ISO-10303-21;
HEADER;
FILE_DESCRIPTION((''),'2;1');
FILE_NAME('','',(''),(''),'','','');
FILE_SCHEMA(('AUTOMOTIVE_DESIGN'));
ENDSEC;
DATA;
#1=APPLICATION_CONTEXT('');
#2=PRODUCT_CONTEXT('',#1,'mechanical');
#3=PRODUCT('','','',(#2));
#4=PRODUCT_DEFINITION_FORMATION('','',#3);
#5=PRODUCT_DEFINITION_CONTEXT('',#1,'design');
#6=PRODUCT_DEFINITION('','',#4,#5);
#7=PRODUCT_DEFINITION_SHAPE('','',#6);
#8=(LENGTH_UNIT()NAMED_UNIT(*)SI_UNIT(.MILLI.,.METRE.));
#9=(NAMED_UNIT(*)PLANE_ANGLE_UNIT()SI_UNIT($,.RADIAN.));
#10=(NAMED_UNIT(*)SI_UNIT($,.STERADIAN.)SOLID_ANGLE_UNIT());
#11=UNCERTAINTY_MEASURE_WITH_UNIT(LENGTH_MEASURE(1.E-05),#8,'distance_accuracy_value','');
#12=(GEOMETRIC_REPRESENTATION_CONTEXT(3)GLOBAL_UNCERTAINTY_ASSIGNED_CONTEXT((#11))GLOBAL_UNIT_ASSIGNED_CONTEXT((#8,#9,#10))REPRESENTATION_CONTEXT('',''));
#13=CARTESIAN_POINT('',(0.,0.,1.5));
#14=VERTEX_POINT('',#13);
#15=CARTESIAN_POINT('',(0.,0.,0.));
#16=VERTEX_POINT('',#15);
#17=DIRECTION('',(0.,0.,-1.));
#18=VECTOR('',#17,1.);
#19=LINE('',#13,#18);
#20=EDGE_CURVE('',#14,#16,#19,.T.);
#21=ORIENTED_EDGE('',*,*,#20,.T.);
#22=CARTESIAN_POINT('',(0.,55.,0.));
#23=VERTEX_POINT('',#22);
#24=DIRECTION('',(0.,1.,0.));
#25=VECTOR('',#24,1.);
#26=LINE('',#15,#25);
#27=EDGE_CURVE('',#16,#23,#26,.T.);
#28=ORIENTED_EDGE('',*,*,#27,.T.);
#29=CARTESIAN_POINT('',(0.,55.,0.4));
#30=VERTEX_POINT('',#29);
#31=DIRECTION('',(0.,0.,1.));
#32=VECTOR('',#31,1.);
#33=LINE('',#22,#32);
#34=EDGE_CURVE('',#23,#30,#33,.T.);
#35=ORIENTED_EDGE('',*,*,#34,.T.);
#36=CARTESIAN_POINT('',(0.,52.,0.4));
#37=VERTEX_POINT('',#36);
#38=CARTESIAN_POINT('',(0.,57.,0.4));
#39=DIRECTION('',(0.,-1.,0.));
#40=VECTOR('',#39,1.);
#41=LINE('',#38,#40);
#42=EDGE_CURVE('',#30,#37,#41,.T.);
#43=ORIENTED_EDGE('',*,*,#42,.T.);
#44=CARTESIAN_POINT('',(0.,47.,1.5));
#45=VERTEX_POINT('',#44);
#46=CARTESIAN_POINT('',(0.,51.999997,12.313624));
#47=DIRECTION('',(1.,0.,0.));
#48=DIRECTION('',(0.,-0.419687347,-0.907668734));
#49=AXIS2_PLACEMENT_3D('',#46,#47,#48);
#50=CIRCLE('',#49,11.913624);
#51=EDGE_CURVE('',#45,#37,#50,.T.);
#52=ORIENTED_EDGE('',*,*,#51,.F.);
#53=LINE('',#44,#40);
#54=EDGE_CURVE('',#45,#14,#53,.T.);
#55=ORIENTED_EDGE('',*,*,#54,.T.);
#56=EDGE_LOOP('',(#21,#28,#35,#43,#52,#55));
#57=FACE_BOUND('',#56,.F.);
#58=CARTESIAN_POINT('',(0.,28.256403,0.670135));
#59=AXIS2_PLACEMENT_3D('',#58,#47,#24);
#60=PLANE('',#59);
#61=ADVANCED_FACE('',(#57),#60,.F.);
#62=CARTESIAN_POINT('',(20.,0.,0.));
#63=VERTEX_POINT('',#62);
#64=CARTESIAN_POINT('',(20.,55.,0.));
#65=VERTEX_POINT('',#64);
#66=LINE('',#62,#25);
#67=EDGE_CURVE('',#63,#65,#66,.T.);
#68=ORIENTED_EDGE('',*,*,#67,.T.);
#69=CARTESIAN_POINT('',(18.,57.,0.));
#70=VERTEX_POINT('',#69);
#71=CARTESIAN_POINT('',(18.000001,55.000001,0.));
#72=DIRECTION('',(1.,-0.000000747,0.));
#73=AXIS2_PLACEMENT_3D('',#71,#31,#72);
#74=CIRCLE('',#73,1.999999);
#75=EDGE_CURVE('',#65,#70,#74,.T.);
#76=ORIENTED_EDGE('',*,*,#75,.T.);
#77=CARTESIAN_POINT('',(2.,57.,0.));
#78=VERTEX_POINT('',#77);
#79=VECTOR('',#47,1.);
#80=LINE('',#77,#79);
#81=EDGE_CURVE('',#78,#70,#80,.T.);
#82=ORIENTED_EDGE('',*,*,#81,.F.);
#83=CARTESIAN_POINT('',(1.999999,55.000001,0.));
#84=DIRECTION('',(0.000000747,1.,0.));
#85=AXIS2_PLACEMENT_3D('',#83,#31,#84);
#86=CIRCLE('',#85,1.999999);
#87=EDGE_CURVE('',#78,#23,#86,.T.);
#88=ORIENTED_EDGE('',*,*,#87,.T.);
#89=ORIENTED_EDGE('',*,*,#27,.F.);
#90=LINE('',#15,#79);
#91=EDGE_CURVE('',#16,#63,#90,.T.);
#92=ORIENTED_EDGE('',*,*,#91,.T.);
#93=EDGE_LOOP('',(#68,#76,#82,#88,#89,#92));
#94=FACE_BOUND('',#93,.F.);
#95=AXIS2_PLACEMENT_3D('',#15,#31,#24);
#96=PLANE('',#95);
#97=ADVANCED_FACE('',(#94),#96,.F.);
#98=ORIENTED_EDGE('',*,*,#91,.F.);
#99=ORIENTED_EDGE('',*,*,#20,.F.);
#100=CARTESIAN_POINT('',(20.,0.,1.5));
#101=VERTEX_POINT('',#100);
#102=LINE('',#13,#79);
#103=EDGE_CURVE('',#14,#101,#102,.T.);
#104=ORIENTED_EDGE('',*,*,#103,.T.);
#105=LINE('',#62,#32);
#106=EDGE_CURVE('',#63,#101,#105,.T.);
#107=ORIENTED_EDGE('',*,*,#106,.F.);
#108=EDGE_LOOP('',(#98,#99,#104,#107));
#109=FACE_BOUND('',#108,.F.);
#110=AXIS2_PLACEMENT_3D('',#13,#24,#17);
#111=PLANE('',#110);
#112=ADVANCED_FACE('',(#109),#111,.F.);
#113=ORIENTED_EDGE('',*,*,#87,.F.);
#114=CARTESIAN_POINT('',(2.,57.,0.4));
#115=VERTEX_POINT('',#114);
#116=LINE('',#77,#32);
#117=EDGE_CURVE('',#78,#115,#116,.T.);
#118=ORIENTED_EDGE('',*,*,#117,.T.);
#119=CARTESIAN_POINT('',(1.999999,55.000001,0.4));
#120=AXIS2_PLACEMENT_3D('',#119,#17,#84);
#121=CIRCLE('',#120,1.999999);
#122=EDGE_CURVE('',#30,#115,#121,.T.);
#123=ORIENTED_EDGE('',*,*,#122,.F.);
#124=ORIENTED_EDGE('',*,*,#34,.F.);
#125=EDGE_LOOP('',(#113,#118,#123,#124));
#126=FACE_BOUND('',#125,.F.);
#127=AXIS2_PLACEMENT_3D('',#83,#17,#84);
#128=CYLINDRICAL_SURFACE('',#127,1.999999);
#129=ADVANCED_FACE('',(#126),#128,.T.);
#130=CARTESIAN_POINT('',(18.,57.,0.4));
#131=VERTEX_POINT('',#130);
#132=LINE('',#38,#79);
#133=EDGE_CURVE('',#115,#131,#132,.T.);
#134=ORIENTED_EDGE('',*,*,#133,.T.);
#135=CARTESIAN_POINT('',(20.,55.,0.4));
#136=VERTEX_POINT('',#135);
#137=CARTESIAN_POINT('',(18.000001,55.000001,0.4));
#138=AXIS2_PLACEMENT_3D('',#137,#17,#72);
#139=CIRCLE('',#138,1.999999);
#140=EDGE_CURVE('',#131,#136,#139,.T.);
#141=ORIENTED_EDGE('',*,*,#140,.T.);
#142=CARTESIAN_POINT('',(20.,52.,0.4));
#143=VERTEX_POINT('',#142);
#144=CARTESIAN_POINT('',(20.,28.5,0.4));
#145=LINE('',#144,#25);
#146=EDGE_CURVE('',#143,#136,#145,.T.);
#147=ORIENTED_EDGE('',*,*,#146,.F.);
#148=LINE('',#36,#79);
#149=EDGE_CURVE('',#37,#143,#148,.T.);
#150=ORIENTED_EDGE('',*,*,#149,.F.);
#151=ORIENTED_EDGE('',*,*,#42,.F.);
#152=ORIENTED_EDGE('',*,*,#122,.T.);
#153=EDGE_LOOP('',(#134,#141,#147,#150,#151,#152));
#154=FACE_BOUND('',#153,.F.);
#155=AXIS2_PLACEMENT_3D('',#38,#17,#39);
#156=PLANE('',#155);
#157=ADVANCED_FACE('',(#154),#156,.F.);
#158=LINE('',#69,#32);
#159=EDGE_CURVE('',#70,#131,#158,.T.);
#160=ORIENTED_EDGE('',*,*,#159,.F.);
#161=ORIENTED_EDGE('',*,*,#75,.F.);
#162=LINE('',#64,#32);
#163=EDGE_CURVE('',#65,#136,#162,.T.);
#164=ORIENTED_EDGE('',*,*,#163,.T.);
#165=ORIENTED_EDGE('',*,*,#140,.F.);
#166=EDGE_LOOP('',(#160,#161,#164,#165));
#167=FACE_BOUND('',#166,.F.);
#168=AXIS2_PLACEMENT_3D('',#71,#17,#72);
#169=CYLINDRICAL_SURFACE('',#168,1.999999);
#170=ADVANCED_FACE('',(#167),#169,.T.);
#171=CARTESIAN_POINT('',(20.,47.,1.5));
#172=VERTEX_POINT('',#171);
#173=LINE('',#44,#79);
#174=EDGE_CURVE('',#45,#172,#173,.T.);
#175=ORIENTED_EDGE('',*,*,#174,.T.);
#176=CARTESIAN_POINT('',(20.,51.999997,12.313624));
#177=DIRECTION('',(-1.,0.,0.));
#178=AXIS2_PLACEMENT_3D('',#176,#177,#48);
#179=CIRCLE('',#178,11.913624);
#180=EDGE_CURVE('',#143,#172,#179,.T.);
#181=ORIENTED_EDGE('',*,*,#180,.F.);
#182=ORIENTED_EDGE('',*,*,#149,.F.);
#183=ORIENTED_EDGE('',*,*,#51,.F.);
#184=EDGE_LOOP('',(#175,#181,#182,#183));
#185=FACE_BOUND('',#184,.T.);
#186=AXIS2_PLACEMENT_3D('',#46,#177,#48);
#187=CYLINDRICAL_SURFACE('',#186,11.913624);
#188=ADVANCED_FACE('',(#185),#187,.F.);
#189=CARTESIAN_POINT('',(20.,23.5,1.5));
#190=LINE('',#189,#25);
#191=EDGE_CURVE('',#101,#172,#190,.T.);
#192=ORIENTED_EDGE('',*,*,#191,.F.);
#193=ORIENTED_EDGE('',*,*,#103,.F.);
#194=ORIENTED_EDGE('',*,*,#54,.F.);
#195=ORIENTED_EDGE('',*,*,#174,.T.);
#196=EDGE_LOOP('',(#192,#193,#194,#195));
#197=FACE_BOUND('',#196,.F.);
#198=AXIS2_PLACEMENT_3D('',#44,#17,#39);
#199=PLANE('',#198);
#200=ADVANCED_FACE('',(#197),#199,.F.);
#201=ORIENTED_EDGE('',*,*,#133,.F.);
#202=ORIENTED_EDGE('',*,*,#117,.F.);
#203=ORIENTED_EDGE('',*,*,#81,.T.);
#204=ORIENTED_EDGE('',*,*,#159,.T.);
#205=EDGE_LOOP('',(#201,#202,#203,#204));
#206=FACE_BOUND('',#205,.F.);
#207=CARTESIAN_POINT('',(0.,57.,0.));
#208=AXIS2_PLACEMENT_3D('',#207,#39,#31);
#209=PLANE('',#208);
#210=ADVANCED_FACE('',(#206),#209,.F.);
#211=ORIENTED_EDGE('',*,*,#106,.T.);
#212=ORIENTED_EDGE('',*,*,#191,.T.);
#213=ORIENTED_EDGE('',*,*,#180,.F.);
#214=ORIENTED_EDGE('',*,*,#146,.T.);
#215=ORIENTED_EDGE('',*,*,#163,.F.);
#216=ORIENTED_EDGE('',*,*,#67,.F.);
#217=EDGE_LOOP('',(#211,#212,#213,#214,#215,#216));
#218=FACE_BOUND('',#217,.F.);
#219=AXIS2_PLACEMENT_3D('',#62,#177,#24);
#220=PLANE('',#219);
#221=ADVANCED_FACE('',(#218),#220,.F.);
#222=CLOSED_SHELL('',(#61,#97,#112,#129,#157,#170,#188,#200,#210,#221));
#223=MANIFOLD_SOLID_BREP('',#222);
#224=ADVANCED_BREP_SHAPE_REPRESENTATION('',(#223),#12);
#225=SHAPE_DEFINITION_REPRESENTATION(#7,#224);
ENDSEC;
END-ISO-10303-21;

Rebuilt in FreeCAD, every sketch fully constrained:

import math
import FreeCAD as App
import Part
import Sketcher

V = App.Vector
Q = App.Units.Quantity

doc = App.newDocument("Part")
body = doc.addObject("PartDesign::Body", "Body")

# Sketch on XY plane
sketch1 = body.newObject("Sketcher::SketchObject", "Sketch")
sketch1.AttachmentSupport = (doc.getObject("XY_Plane"), [""])
sketch1.MapMode = "FlatFace"
sketch1.addGeometry(Part.ArcOfCircle(Part.Circle(V(2, 55, 0), V(0, 0, 1), 2), math.radians(90), math.radians(180)), False)
sketch1.addGeometry(Part.LineSegment(V(0, 55, 0), V(0, 0, 0)), False)
sketch1.addGeometry(Part.LineSegment(V(0, 0, 0), V(20, 0, 0)), False)
sketch1.addGeometry(Part.LineSegment(V(20, 0, 0), V(20, 55, 0)), False)
sketch1.addGeometry(Part.ArcOfCircle(Part.Circle(V(18, 55, 0), V(0, 0, 1), 2), math.radians(0), math.radians(90)), False)
sketch1.addGeometry(Part.LineSegment(V(18, 57, 0), V(2, 57, 0)), False)
sketch1.addConstraint(Sketcher.Constraint("Tangent", 0, 2, 1, 1))
sketch1.addConstraint(Sketcher.Constraint("Coincident", 1, 2, 2, 1))
sketch1.addConstraint(Sketcher.Constraint("Coincident", 2, 2, 3, 1))
sketch1.addConstraint(Sketcher.Constraint("Tangent", 3, 2, 4, 1))
sketch1.addConstraint(Sketcher.Constraint("Tangent", 4, 2, 5, 1))
sketch1.addConstraint(Sketcher.Constraint("Tangent", 5, 2, 0, 1))
sketch1.addConstraint(Sketcher.Constraint("Vertical", 1))
sketch1.addConstraint(Sketcher.Constraint("Horizontal", 2))
sketch1.addConstraint(Sketcher.Constraint("Vertical", 3))
sketch1.addConstraint(Sketcher.Constraint("Horizontal", 5))
sketch1.addConstraint(Sketcher.Constraint("Coincident", 1, 2, -1, 1))
sketch1.addConstraint(Sketcher.Constraint("Equal", 0, 4))
sketch1.addConstraint(Sketcher.Constraint("Radius", 0, Q("1.999999 mm")))
sketch1.addConstraint(Sketcher.Constraint("DistanceX", 2, 1, 2, 2, Q("20 mm")))
sketch1.addConstraint(Sketcher.Constraint("DistanceY", 1, 2, 1, 1, Q("55 mm")))
pad1 = body.newObject("PartDesign::Pad", "Pad")
pad1.Profile = sketch1
pad1.Length = 10
body2 = doc.addObject("PartDesign::Body", "Body001")

# Sketch on YZ plane
sketch2 = body2.newObject("Sketcher::SketchObject", "Sketch001")
sketch2.AttachmentSupport = (doc.getObject("YZ_Plane001"), [""])
sketch2.MapMode = "FlatFace"
sketch2.addGeometry(Part.LineSegment(V(0, 0, 0), V(57, 0, 0)), False)
sketch2.addGeometry(Part.LineSegment(V(57, 0, 0), V(57, 0.4, 0)), False)
sketch2.addGeometry(Part.LineSegment(V(57, 0.4, 0), V(52, 0.4, 0)), False)
sketch2.addGeometry(Part.ArcOfCircle(Part.Circle(V(52, 12.31, 0), V(0, 0, 1), 11.91), math.radians(-115), math.radians(-90)), False)
sketch2.addGeometry(Part.LineSegment(V(47, 1.5, 0), V(0, 1.5, 0)), False)
sketch2.addGeometry(Part.LineSegment(V(0, 1.5, 0), V(0, 0, 0)), False)
sketch2.addConstraint(Sketcher.Constraint("Coincident", 0, 2, 1, 1))
sketch2.addConstraint(Sketcher.Constraint("Coincident", 1, 2, 2, 1))
sketch2.addConstraint(Sketcher.Constraint("Tangent", 2, 2, 3, 2))
sketch2.addConstraint(Sketcher.Constraint("Coincident", 3, 1, 4, 1))
sketch2.addConstraint(Sketcher.Constraint("Coincident", 4, 2, 5, 1))
sketch2.addConstraint(Sketcher.Constraint("Coincident", 5, 2, 0, 1))
sketch2.addConstraint(Sketcher.Constraint("Horizontal", 0))
sketch2.addConstraint(Sketcher.Constraint("Vertical", 1))
sketch2.addConstraint(Sketcher.Constraint("Horizontal", 2))
sketch2.addConstraint(Sketcher.Constraint("Horizontal", 4))
sketch2.addConstraint(Sketcher.Constraint("Vertical", 5))
sketch2.addConstraint(Sketcher.Constraint("Coincident", 5, 2, -1, 1))
sketch2.addConstraint(Sketcher.Constraint("DistanceX", 0, 1, 0, 2, Q("57 mm")))
sketch2.addConstraint(Sketcher.Constraint("DistanceX", 2, 2, 2, 1, Q("5 mm")))
sketch2.addConstraint(Sketcher.Constraint("DistanceX", 4, 2, 4, 1, Q("47 mm")))
sketch2.addConstraint(Sketcher.Constraint("DistanceY", 1, 1, 1, 2, Q("0.4 mm")))
sketch2.addConstraint(Sketcher.Constraint("DistanceY", 5, 2, 5, 1, Q("1.5 mm")))
pad2 = body2.newObject("PartDesign::Pad", "Pad001")
pad2.Profile = sketch2
pad2.Length = 40
doc.recompute()

boolean = body2.newObject("PartDesign::Boolean", "Boolean")
boolean.Type = "Common"
boolean.addObjects([body])

doc.recompute()
